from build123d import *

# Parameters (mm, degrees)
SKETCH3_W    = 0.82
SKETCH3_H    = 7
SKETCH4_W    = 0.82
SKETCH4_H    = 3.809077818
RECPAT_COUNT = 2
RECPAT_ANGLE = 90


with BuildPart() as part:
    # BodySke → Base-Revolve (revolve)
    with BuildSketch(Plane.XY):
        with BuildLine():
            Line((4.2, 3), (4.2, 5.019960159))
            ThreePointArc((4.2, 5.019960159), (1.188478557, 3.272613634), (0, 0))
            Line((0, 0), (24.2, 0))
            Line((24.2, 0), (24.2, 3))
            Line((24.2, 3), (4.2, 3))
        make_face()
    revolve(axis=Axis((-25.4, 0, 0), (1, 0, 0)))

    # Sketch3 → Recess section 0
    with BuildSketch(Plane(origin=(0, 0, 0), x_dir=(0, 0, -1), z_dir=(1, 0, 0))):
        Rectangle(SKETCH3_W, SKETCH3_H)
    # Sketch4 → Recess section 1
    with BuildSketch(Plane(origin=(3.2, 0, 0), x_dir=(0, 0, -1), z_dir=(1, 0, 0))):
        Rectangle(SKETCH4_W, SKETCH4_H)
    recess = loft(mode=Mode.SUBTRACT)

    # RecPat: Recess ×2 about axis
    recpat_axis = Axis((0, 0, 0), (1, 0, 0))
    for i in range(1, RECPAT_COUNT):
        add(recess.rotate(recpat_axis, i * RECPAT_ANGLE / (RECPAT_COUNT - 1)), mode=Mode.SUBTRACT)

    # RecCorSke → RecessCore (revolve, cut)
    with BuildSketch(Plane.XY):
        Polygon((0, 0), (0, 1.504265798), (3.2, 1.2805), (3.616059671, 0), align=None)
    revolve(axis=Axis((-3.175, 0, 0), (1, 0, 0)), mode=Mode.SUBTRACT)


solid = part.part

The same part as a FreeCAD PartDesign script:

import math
import FreeCAD as App
import Part
import Sketcher
from FreeCAD import Vector
Q = App.Units.Quantity


def add_polygon(sketch, points):
    """Adds a closed chain of lines whose ends are joined by coincident constraints."""
    first, n = sketch.GeometryCount, len(points)
    for a, b in zip(points, points[1:] + points[:1]):
        sketch.addGeometry(Part.LineSegment(App.Vector(*a, 0), App.Vector(*b, 0)), False)
    for i in range(n):
        sketch.addConstraint(Sketcher.Constraint("Coincident", first + i, 2, first + (i + 1) % n, 1))

doc = App.newDocument("Part")
body = doc.addObject("PartDesign::Body", "Body")

sketch1 = body.newObject("Sketcher::SketchObject", "Sketch")
sketch1.AttachmentSupport = (doc.getObject("XY_Plane"), [""])
sketch1.MapMode = "FlatFace"
sketch1.addGeometry(Part.LineSegment(Vector(4.2, 3, 0), Vector(4.2, 5.01996, 0)), False)
sketch1.addGeometry(Part.ArcOfCircle(Part.Circle(Vector(5.1, 0, 0), Vector(0, 0, 1), 5.1), math.radians(100.164249), math.radians(180)), False)
sketch1.addGeometry(Part.LineSegment(Vector(0, 0, 0), Vector(24.2, 0, 0)), False)
sketch1.addGeometry(Part.LineSegment(Vector(24.2, 0, 0), Vector(24.2, 3, 0)), False)
sketch1.addGeometry(Part.LineSegment(Vector(24.2, 3, 0), Vector(4.2, 3, 0)), False)
sketch1.addConstraint(Sketcher.Constraint("Coincident", 0, 2, 1, 1))
sketch1.addConstraint(Sketcher.Constraint("Coincident", 1, 2, 2, 1))
sketch1.addConstraint(Sketcher.Constraint("Coincident", 2, 2, 3, 1))
sketch1.addConstraint(Sketcher.Constraint("Coincident", 3, 2, 4, 1))
sketch1.addConstraint(Sketcher.Constraint("Coincident", 4, 2, 0, 1))
sketch1.addConstraint(Sketcher.Constraint("Vertical", 0))
sketch1.addConstraint(Sketcher.Constraint("Horizontal", 2))
sketch1.addConstraint(Sketcher.Constraint("Vertical", 3))
sketch1.addConstraint(Sketcher.Constraint("Horizontal", 4))
sketch1.addConstraint(Sketcher.Constraint("Coincident", 1, 2, -1, 1))
sketch1.addConstraint(Sketcher.Constraint("PointOnObject", 1, 3, -1))
sketch1.addConstraint(Sketcher.Constraint("Radius", 1, Q("5.1 mm")))
sketch1.addConstraint(Sketcher.Constraint("DistanceX", 4, 2, 4, 1, Q("20 mm")))
sketch1.addConstraint(Sketcher.Constraint("DistanceY", 3, 1, 3, 2, Q("3 mm")))
sketch1.addConstraint(Sketcher.Constraint("DistanceX", 2, 1, 2, 2, Q("24.2 mm")))
revolution = body.newObject("PartDesign::Revolution", "Revolution")
revolution.Profile = sketch1
revolution.ReferenceAxis = (sketch1, ["H_Axis"])
revolution.Angle = 360

sketch2 = body.newObject("Sketcher::SketchObject", "Sketch001")
sketch2.AttachmentSupport = (doc.getObject("YZ_Plane"), [""])
sketch2.MapMode = "FlatFace"
add_polygon(sketch2, [(3.5, 0.41), (-3.5, 0.41), (-3.5, -0.41), (3.5, -0.41)])
sketch2.addConstraint(Sketcher.Constraint("Horizontal", 0))
sketch2.addConstraint(Sketcher.Constraint("Vertical", 1))
sketch2.addConstraint(Sketcher.Constraint("Horizontal", 2))
sketch2.addConstraint(Sketcher.Constraint("Vertical", 3))
sketch2.addConstraint(Sketcher.Constraint("Symmetric", 0, 2, 2, 2, -1, 1))
sketch2.addConstraint(Sketcher.Constraint("DistanceX", 0, 2, 0, 1, Q("7 mm")))
sketch2.addConstraint(Sketcher.Constraint("DistanceY", 1, 2, 1, 1, Q("0.82 mm")))

sketch3 = body.newObject("Sketcher::SketchObject", "Sketch002")
sketch3.AttachmentSupport = (doc.getObject("YZ_Plane"), [""])
sketch3.MapMode = "FlatFace"
sketch3.AttachmentOffset = App.Placement(Vector(0, 0, 3.2), App.Rotation())
add_polygon(sketch3, [(1.904539, 0.41), (-1.904539, 0.41), (-1.904539, -0.41), (1.904539, -0.41)])
sketch3.addConstraint(Sketcher.Constraint("Horizontal", 0))
sketch3.addConstraint(Sketcher.Constraint("Vertical", 1))
sketch3.addConstraint(Sketcher.Constraint("Horizontal", 2))
sketch3.addConstraint(Sketcher.Constraint("Vertical", 3))
sketch3.addConstraint(Sketcher.Constraint("Symmetric", 0, 2, 2, 2, -1, 1))
sketch3.addConstraint(Sketcher.Constraint("DistanceY", 1, 2, 1, 1, Q("0.82 mm")))
sketch3.addConstraint(Sketcher.Constraint("DistanceX", 0, 2, 0, 1, Q("3.809078 mm")))

subtractiveloft = body.newObject("PartDesign::SubtractiveLoft", "SubtractiveLoft")
subtractiveloft.Profile = sketch2
subtractiveloft.Sections = [sketch3]
doc.recompute()

polarpattern = body.newObject("PartDesign::PolarPattern", "PolarPattern")
polarpattern.Originals = [subtractiveloft]
polarpattern.Axis = (doc.getObject("X_Axis"), [""])
polarpattern.Angle = 90
polarpattern.Occurrences = 2
body.Tip = polarpattern

sketch4 = body.newObject("Sketcher::SketchObject", "Sketch003")
sketch4.AttachmentSupport = (doc.getObject("XY_Plane"), [""])
sketch4.MapMode = "FlatFace"
add_polygon(sketch4, [(0, 1.504266), (0, 0), (3.61606, 0), (3.2, 1.2805)])
sketch4.addConstraint(Sketcher.Constraint("Vertical", 0))
sketch4.addConstraint(Sketcher.Constraint("Horizontal", 1))
sketch4.addConstraint(Sketcher.Constraint("Coincident", 0, 2, -1, 1))
sketch4.addConstraint(Sketcher.Constraint("Angle", 2, Q("108 deg")))
sketch4.addConstraint(Sketcher.Constraint("Angle", 3, Q("176 deg")))
sketch4.addConstraint(Sketcher.Constraint("DistanceX", -1, 1, 2, 2, Q("3.2 mm")))
sketch4.addConstraint(Sketcher.Constraint("DistanceX", 1, 1, 1, 2, Q("3.61606 mm")))
groove = body.newObject("PartDesign::Groove", "Groove")
groove.Profile = sketch4
groove.ReferenceAxis = (sketch4, ["H_Axis"])
groove.Angle = 360

doc.recompute()
